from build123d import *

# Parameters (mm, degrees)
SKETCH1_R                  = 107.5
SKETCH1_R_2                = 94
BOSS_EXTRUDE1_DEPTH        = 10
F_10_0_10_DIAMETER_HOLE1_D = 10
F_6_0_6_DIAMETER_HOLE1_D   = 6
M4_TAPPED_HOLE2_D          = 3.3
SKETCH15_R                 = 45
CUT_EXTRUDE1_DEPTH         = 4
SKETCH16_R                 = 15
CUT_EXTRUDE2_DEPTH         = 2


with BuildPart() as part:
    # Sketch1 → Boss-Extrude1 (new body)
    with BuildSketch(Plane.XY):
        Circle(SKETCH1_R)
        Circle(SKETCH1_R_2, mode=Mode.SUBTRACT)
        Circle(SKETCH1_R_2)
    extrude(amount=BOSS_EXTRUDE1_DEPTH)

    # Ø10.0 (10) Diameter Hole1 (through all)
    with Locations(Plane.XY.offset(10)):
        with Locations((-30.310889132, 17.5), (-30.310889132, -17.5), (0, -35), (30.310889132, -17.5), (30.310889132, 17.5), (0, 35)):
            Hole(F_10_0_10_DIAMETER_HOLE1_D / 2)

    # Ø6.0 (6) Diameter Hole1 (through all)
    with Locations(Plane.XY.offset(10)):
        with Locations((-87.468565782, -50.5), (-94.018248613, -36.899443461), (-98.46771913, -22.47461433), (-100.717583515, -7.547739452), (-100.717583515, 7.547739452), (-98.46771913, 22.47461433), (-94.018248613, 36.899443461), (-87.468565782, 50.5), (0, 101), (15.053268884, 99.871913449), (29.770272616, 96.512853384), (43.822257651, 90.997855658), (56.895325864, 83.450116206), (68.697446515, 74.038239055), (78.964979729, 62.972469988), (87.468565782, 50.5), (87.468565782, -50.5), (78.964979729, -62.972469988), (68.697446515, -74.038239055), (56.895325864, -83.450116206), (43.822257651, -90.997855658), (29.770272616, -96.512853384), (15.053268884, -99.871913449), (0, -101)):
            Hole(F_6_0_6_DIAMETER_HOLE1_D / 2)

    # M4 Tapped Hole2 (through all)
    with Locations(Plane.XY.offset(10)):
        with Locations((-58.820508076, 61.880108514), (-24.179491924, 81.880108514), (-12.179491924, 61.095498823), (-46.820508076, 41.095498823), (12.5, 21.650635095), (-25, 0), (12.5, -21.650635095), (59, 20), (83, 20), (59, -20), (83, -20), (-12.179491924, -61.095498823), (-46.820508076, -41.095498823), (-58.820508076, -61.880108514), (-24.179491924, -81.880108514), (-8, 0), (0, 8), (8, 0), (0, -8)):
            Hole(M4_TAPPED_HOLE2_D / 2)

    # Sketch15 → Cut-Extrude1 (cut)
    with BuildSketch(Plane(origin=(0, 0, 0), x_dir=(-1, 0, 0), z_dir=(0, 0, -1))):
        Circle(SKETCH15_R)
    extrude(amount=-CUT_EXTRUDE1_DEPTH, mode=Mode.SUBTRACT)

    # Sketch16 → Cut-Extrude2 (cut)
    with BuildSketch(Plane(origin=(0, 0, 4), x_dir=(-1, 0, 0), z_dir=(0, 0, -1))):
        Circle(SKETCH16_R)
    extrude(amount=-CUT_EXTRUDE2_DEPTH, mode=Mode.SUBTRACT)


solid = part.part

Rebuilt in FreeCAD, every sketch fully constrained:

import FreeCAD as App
import Part
import Sketcher

V = App.Vector
Q = App.Units.Quantity

doc = App.newDocument("Part")
body = doc.addObject("PartDesign::Body", "Body")

sketch1 = body.newObject("Sketcher::SketchObject", "Sketch")
sketch1.AttachmentSupport = (doc.getObject("XY_Plane"), [""])
sketch1.MapMode = "FlatFace"
sketch1.addGeometry(Part.Circle(V(0, 0, 0), V(0, 0, 1), 108), False)
sketch1.addConstraint([
    Sketcher.Constraint("Coincident", 0, 3, -1, 1),
    Sketcher.Constraint("Diameter", 0, Q("215 mm")),
])
pad1 = body.newObject("PartDesign::Pad", "Pad")
pad1.Profile = sketch1
pad1.Length = 10

sketch2 = body.newObject("Sketcher::SketchObject", "Sketch001")
sketch2.AttachmentSupport = (doc.getObject("XY_Plane"), [""])
sketch2.MapMode = "FlatFace"
sketch2.AttachmentOffset = App.Placement(V(0, 0, 10), App.Rotation())
sketch2.addGeometry([
    Part.Circle(V(-30, 18, 0), V(0, 0, 1), 5),
    Part.Circle(V(-30, -18, 0), V(0, 0, 1), 5),
    Part.Circle(V(0, -35, 0), V(0, 0, 1), 5),
    Part.Circle(V(30, -18, 0), V(0, 0, 1), 5),
    Part.Circle(V(30, 18, 0), V(0, 0, 1), 5),
    Part.Circle(V(0, 35, 0), V(0, 0, 1), 5),
], False)
sketch2.addConstraint([
    Sketcher.Constraint("Equal", 0, 1),
    Sketcher.Constraint("Equal", 1, 2),
    Sketcher.Constraint("Equal", 2, 3),
    Sketcher.Constraint("Equal", 3, 4),
    Sketcher.Constraint("Equal", 4, 5),
    Sketcher.Constraint("Symmetric", 0, 3, 3, 3, -1, 1),
    Sketcher.Constraint("Symmetric", 1, 3, 4, 3, -1, 1),
    Sketcher.Constraint("Symmetric", 2, 3, 5, 3, -1, 1),
    Sketcher.Constraint("Symmetric", 1, 3, 3, 3, -2),
    Sketcher.Constraint("PointOnObject", 2, 3, -2),
    Sketcher.Constraint("Diameter", 0, Q("10 mm")),
    Sketcher.Constraint("DistanceY", 2, 3, -1, 1, Q("35 mm")),
    Sketcher.Constraint("DistanceY", 1, 3, 0, 3, Q("35 mm")),
    Sketcher.Constraint("DistanceX", 0, 3, -1, 1, Q("30.310889 mm")),
])
doc.recompute()
hole = body.newObject("PartDesign::Hole", "Hole")
hole.Profile = sketch2
hole.ThreadType = "None"
hole.Diameter = 10
hole.DepthType = "ThroughAll"

sketch3 = body.newObject("Sketcher::SketchObject", "Sketch002")
sketch3.AttachmentSupport = (doc.getObject("XY_Plane"), [""])
sketch3.MapMode = "FlatFace"
sketch3.AttachmentOffset = App.Placement(V(0, 0, 10), App.Rotation())
sketch3.addGeometry([
    Part.Circle(V(-87.5, -50.5, 0), V(0, 0, 1), 3),
    Part.Circle(V(-94, -36.9, 0), V(0, 0, 1), 3),
    Part.Circle(V(-98.5, -22.5, 0), V(0, 0, 1), 3),
    Part.Circle(V(-100.7, -7.5, 0), V(0, 0, 1), 3),
    Part.Circle(V(-100.7, 7.5, 0), V(0, 0, 1), 3),
    Part.Circle(V(-98.5, 22.5, 0), V(0, 0, 1), 3),
    Part.Circle(V(-94, 36.9, 0), V(0, 0, 1), 3),
    Part.Circle(V(-87.5, 50.5, 0), V(0, 0, 1), 3),
    Part.Circle(V(0, 101, 0), V(0, 0, 1), 3),
    Part.Circle(V(15.1, 99.9, 0), V(0, 0, 1), 3),
    Part.Circle(V(29.8, 96.5, 0), V(0, 0, 1), 3),
    Part.Circle(V(43.8, 91, 0), V(0, 0, 1), 3),
    Part.Circle(V(56.9, 83.5, 0), V(0, 0, 1), 3),
    Part.Circle(V(68.7, 74, 0), V(0, 0, 1), 3),
    Part.Circle(V(79, 63, 0), V(0, 0, 1), 3),
    Part.Circle(V(87.5, 50.5, 0), V(0, 0, 1), 3),
    Part.Circle(V(87.5, -50.5, 0), V(0, 0, 1), 3),
    Part.Circle(V(79, -63, 0), V(0, 0, 1), 3),
    Part.Circle(V(68.7, -74, 0), V(0, 0, 1), 3),
    Part.Circle(V(56.9, -83.5, 0), V(0, 0, 1), 3),
    Part.Circle(V(43.8, -91, 0), V(0, 0, 1), 3),
    Part.Circle(V(29.8, -96.5, 0), V(0, 0, 1), 3),
    Part.Circle(V(15.1, -99.9, 0), V(0, 0, 1), 3),
    Part.Circle(V(0, -101, 0), V(0, 0, 1), 3),
], False)
sketch3.addConstraint([
    Sketcher.Constraint("Equal", 0, 1),
    Sketcher.Constraint("Equal", 1, 2),
    Sketcher.Constraint("Equal", 2, 3),
    Sketcher.Constraint("Equal", 3, 4),
    Sketcher.Constraint("Equal", 4, 5),
    Sketcher.Constraint("Equal", 5, 6),
    Sketcher.Constraint("Equal", 6, 7),
    Sketcher.Constraint("Equal", 7, 8),
    Sketcher.Constraint("Equal", 8, 9),
    Sketcher.Constraint("Equal", 9, 10),
    Sketcher.Constraint("Equal", 10, 11),
    Sketcher.Constraint("Equal", 11, 12),
    Sketcher.Constraint("Equal", 12, 13),
    Sketcher.Constraint("Equal", 13, 14),
    Sketcher.Constraint("Equal", 14, 15),
    Sketcher.Constraint("Equal", 15, 16),
    Sketcher.Constraint("Equal", 16, 17),
    Sketcher.Constraint("Equal", 17, 18),
    Sketcher.Constraint("Equal", 18, 19),
    Sketcher.Constraint("Equal", 19, 20),
    Sketcher.Constraint("Equal", 20, 21),
    Sketcher.Constraint("Equal", 21, 22),
    Sketcher.Constraint("Equal", 22, 23),
    Sketcher.Constraint("Symmetric", 0, 3, 15, 3, -1, 1),
    Sketcher.Constraint("Symmetric", 7, 3, 16, 3, -1, 1),
    Sketcher.Constraint("Symmetric", 8, 3, 23, 3, -1, 1),
    Sketcher.Constraint("Symmetric", 7, 3, 15, 3, -2),
    Sketcher.Constraint("Symmetric", 3, 3, 4, 3, -1),
    Sketcher.Constraint("Symmetric", 2, 3, 5, 3, -1),
    Sketcher.Constraint("Symmetric", 1, 3, 6, 3, -1),
    Sketcher.Constraint("Symmetric", 14, 3, 17, 3, -1),
    Sketcher.Constraint("Symmetric", 13, 3, 18, 3, -1),
    Sketcher.Constraint("Symmetric", 12, 3, 19, 3, -1),
    Sketcher.Constraint("Symmetric", 11, 3, 20, 3, -1),
    Sketcher.Constraint("Symmetric", 10, 3, 21, 3, -1),
    Sketcher.Constraint("Symmetric", 9, 3, 22, 3, -1),
    Sketcher.Constraint("PointOnObject", 8, 3, -2),
    Sketcher.Constraint("Diameter", 0, Q("6 mm")),
    Sketcher.Constraint("DistanceY", -1, 1, 8, 3, Q("101 mm")),
    Sketcher.Constraint("DistanceY", 16, 3, 15, 3, Q("101 mm")),
    Sketcher.Constraint("DistanceY", 5, 3, 9, 3, Q("77.397299 mm")),
    Sketcher.Constraint("DistanceX", 1, 3, -1, 1, Q("94.018249 mm")),
    Sketcher.Constraint("DistanceX", 2, 3, -1, 1, Q("98.467719 mm")),
    Sketcher.Constraint("DistanceY", 3, 3, -1, 1, Q("7.547739 mm")),
    Sketcher.Constraint("DistanceX", -1, 1, 9, 3, Q("15.053269 mm")),
    Sketcher.Constraint("DistanceY", -1, 1, 13, 3, Q("74.038239 mm")),
    Sketcher.Constraint("DistanceX", -1, 1, 14, 3, Q("78.96498 mm")),
    Sketcher.Constraint("DistanceY", -1, 1, 14, 3, Q("62.97247 mm")),
    Sketcher.Constraint("DistanceY", 1, 3, 2, 3, Q("14.424829 mm")),
    Sketcher.Constraint("DistanceY", 2, 3, 5, 3, Q("44.949229 mm")),
    Sketcher.Constraint("DistanceY", 10, 3, 9, 3, Q("3.35906 mm")),
    Sketcher.Constraint("DistanceX", 7, 3, 10, 3, Q("117.238838 mm")),
    Sketcher.Constraint("DistanceX", 6, 3, 10, 3, Q("123.788521 mm")),
    Sketcher.Constraint("DistanceX", 9, 3, 11, 3, Q("28.768989 mm")),
    Sketcher.Constraint("DistanceX", 11, 3, 12, 3, Q("13.073068 mm")),
    Sketcher.Constraint("DistanceY", 12, 3, 11, 3, Q("7.547739 mm")),
    Sketcher.Constraint("DistanceX", 12, 3, 13, 3, Q("11.802121 mm")),
    Sketcher.Constraint("DistanceX", 3, 3, -1, 1, Q("100.717584 mm")),
    Sketcher.Constraint("DistanceY", -1, 1, 11, 3, Q("90.997856 mm")),
])
doc.recompute()
hole2 = body.newObject("PartDesign::Hole", "Hole001")
hole2.Profile = sketch3
hole2.ThreadType = "None"
hole2.Diameter = 6
hole2.DepthType = "ThroughAll"

sketch4 = body.newObject("Sketcher::SketchObject", "Sketch003")
sketch4.AttachmentSupport = (doc.getObject("XY_Plane"), [""])
sketch4.MapMode = "FlatFace"
sketch4.AttachmentOffset = App.Placement(V(0, 0, 10), App.Rotation())
sketch4.addGeometry([
    Part.Circle(V(-58.8, 61.9, 0), V(0, 0, 1), 1.6),
    Part.Circle(V(-24.2, 81.9, 0), V(0, 0, 1), 1.6),
    Part.Circle(V(-12.2, 61.1, 0), V(0, 0, 1), 1.6),
    Part.Circle(V(-46.8, 41.1, 0), V(0, 0, 1), 1.6),
    Part.Circle(V(12.5, 21.7, 0), V(0, 0, 1), 1.6),
    Part.Circle(V(-25, 0, 0), V(0, 0, 1), 1.6),
    Part.Circle(V(12.5, -21.7, 0), V(0, 0, 1), 1.6),
    Part.Circle(V(59, 20, 0), V(0, 0, 1), 1.6),
    Part.Circle(V(83, 20, 0), V(0, 0, 1), 1.6),
    Part.Circle(V(59, -20, 0), V(0, 0, 1), 1.6),
    Part.Circle(V(83, -20, 0), V(0, 0, 1), 1.6),
    Part.Circle(V(-12.2, -61.1, 0), V(0, 0, 1), 1.6),
    Part.Circle(V(-46.8, -41.1, 0), V(0, 0, 1), 1.6),
    Part.Circle(V(-58.8, -61.9, 0), V(0, 0, 1), 1.6),
    Part.Circle(V(-24.2, -81.9, 0), V(0, 0, 1), 1.6),
    Part.Circle(V(-8, 0, 0), V(0, 0, 1), 1.6),
    Part.Circle(V(0, 8, 0), V(0, 0, 1), 1.6),
    Part.Circle(V(8, 0, 0), V(0, 0, 1), 1.6),
    Part.Circle(V(0, -8, 0), V(0, 0, 1), 1.6),
], False)
sketch4.addConstraint([
    Sketcher.Constraint("Equal", 0, 1),
    Sketcher.Constraint("Equal", 1, 2),
    Sketcher.Constraint("Equal", 2, 3),
    Sketcher.Constraint("Equal", 3, 4),
    Sketcher.Constraint("Equal", 4, 5),
    Sketcher.Constraint("Equal", 5, 6),
    Sketcher.Constraint("Equal", 6, 7),
    Sketcher.Constraint("Equal", 7, 8),
    Sketcher.Constraint("Equal", 8, 9),
    Sketcher.Constraint("Equal", 9, 10),
    Sketcher.Constraint("Equal", 10, 11),
    Sketcher.Constraint("Equal", 11, 12),
    Sketcher.Constraint("Equal", 12, 13),
    Sketcher.Constraint("Equal", 13, 14),
    Sketcher.Constraint("Equal", 14, 15),
    Sketcher.Constraint("Equal", 15, 16),
    Sketcher.Constraint("Equal", 16, 17),
    Sketcher.Constraint("Equal", 17, 18),
    Sketcher.Constraint("Symmetric", 15, 3, 17, 3, -1, 1),
    Sketcher.Constraint("Symmetric", 16, 3, 18, 3, -1, 1),
    Sketcher.Constraint("Symmetric", 4, 3, 6, 3, -1),
    Sketcher.Constraint("Symmetric", 7, 3, 9, 3, -1),
    Sketcher.Constraint("Symmetric", 8, 3, 10, 3, -1),
    Sketcher.Constraint("Symmetric", 2, 3, 11, 3, -1),
    Sketcher.Constraint("Symmetric", 3, 3, 12, 3, -1),
    Sketcher.Constraint("Symmetric", 0, 3, 13, 3, -1),
    Sketcher.Constraint("Symmetric", 1, 3, 14, 3, -1),
    Sketcher.Constraint("PointOnObject", 5, 3, -1),
    Sketcher.Constraint("PointOnObject", 15, 3, -1),
    Sketcher.Constraint("PointOnObject", 16, 3, -2),
    Sketcher.Constraint("Horizontal", 7, 3, 8, 3),
    Sketcher.Constraint("Diameter", 0, Q("3.3 mm")),
    Sketcher.Constraint("DistanceX", 5, 3, -1, 1, Q("25 mm")),
    Sketcher.Constraint("DistanceX", -1, 1, 7, 3, Q("59 mm")),
    Sketcher.Constraint("DistanceY", -1, 1, 7, 3, Q("20 mm")),
    Sketcher.Constraint("DistanceX", -1, 1, 8, 3, Q("83 mm")),
    Sketcher.Constraint("DistanceX", 15, 3, -1, 1, Q("8 mm")),
    Sketcher.Constraint("DistanceY", -1, 1, 16, 3, Q("8 mm")),
    Sketcher.Constraint("DistanceY", 0, 3, 1, 3, Q("20 mm")),
    Sketcher.Constraint("DistanceX", 1, 3, 2, 3, Q("12 mm")),
    Sketcher.Constraint("DistanceX", 0, 3, 3, 3, Q("12 mm")),
    Sketcher.Constraint("DistanceY", 3, 3, 2, 3, Q("20 mm")),
    Sketcher.Constraint("DistanceX", -1, 1, 4, 3, Q("12.5 mm")),
    Sketcher.Constraint("DistanceY", -1, 1, 2, 3, Q("61.095499 mm")),
    Sketcher.Constraint("DistanceX", 0, 3, -1, 1, Q("58.820508 mm")),
    Sketcher.Constraint("DistanceY", -1, 1, 0, 3, Q("61.880109 mm")),
    Sketcher.Constraint("DistanceX", 1, 3, -1, 1, Q("24.179492 mm")),
    Sketcher.Constraint("DistanceY", 6, 3, 4, 3, Q("43.30127 mm")),
])
doc.recompute()
hole3 = body.newObject("PartDesign::Hole", "Hole002")
hole3.Profile = sketch4
hole3.ThreadType = "None"
hole3.Diameter = 3.3
hole3.DepthType = "ThroughAll"

sketch5 = body.newObject("Sketcher::SketchObject", "Sketch004")
sketch5.AttachmentSupport = (doc.getObject("XY_Plane"), [""])
sketch5.MapMode = "FlatFace"
sketch5.addGeometry(Part.Circle(V(0, 0, 0), V(0, 0, 1), 45), False)
sketch5.addConstraint([
    Sketcher.Constraint("Coincident", 0, 3, -1, 1),
    Sketcher.Constraint("Diameter", 0, Q("90 mm")),
])
pocket1 = body.newObject("PartDesign::Pocket", "Pocket")
pocket1.Profile = sketch5
pocket1.Length = 4
pocket1.Reversed = True

sketch6 = body.newObject("Sketcher::SketchObject", "Sketch005")
sketch6.AttachmentSupport = (doc.getObject("XY_Plane"), [""])
sketch6.MapMode = "FlatFace"
sketch6.AttachmentOffset = App.Placement(V(0, 0, 4), App.Rotation())
sketch6.addGeometry(Part.Circle(V(0, 0, 0), V(0, 0, 1), 15), False)
sketch6.addConstraint([
    Sketcher.Constraint("Coincident", 0, 3, -1, 1),
    Sketcher.Constraint("Diameter", 0, Q("30 mm")),
])
pocket2 = body.newObject("PartDesign::Pocket", "Pocket001")
pocket2.Profile = sketch6
pocket2.Length = 2
pocket2.Reversed = True

doc.recompute()
